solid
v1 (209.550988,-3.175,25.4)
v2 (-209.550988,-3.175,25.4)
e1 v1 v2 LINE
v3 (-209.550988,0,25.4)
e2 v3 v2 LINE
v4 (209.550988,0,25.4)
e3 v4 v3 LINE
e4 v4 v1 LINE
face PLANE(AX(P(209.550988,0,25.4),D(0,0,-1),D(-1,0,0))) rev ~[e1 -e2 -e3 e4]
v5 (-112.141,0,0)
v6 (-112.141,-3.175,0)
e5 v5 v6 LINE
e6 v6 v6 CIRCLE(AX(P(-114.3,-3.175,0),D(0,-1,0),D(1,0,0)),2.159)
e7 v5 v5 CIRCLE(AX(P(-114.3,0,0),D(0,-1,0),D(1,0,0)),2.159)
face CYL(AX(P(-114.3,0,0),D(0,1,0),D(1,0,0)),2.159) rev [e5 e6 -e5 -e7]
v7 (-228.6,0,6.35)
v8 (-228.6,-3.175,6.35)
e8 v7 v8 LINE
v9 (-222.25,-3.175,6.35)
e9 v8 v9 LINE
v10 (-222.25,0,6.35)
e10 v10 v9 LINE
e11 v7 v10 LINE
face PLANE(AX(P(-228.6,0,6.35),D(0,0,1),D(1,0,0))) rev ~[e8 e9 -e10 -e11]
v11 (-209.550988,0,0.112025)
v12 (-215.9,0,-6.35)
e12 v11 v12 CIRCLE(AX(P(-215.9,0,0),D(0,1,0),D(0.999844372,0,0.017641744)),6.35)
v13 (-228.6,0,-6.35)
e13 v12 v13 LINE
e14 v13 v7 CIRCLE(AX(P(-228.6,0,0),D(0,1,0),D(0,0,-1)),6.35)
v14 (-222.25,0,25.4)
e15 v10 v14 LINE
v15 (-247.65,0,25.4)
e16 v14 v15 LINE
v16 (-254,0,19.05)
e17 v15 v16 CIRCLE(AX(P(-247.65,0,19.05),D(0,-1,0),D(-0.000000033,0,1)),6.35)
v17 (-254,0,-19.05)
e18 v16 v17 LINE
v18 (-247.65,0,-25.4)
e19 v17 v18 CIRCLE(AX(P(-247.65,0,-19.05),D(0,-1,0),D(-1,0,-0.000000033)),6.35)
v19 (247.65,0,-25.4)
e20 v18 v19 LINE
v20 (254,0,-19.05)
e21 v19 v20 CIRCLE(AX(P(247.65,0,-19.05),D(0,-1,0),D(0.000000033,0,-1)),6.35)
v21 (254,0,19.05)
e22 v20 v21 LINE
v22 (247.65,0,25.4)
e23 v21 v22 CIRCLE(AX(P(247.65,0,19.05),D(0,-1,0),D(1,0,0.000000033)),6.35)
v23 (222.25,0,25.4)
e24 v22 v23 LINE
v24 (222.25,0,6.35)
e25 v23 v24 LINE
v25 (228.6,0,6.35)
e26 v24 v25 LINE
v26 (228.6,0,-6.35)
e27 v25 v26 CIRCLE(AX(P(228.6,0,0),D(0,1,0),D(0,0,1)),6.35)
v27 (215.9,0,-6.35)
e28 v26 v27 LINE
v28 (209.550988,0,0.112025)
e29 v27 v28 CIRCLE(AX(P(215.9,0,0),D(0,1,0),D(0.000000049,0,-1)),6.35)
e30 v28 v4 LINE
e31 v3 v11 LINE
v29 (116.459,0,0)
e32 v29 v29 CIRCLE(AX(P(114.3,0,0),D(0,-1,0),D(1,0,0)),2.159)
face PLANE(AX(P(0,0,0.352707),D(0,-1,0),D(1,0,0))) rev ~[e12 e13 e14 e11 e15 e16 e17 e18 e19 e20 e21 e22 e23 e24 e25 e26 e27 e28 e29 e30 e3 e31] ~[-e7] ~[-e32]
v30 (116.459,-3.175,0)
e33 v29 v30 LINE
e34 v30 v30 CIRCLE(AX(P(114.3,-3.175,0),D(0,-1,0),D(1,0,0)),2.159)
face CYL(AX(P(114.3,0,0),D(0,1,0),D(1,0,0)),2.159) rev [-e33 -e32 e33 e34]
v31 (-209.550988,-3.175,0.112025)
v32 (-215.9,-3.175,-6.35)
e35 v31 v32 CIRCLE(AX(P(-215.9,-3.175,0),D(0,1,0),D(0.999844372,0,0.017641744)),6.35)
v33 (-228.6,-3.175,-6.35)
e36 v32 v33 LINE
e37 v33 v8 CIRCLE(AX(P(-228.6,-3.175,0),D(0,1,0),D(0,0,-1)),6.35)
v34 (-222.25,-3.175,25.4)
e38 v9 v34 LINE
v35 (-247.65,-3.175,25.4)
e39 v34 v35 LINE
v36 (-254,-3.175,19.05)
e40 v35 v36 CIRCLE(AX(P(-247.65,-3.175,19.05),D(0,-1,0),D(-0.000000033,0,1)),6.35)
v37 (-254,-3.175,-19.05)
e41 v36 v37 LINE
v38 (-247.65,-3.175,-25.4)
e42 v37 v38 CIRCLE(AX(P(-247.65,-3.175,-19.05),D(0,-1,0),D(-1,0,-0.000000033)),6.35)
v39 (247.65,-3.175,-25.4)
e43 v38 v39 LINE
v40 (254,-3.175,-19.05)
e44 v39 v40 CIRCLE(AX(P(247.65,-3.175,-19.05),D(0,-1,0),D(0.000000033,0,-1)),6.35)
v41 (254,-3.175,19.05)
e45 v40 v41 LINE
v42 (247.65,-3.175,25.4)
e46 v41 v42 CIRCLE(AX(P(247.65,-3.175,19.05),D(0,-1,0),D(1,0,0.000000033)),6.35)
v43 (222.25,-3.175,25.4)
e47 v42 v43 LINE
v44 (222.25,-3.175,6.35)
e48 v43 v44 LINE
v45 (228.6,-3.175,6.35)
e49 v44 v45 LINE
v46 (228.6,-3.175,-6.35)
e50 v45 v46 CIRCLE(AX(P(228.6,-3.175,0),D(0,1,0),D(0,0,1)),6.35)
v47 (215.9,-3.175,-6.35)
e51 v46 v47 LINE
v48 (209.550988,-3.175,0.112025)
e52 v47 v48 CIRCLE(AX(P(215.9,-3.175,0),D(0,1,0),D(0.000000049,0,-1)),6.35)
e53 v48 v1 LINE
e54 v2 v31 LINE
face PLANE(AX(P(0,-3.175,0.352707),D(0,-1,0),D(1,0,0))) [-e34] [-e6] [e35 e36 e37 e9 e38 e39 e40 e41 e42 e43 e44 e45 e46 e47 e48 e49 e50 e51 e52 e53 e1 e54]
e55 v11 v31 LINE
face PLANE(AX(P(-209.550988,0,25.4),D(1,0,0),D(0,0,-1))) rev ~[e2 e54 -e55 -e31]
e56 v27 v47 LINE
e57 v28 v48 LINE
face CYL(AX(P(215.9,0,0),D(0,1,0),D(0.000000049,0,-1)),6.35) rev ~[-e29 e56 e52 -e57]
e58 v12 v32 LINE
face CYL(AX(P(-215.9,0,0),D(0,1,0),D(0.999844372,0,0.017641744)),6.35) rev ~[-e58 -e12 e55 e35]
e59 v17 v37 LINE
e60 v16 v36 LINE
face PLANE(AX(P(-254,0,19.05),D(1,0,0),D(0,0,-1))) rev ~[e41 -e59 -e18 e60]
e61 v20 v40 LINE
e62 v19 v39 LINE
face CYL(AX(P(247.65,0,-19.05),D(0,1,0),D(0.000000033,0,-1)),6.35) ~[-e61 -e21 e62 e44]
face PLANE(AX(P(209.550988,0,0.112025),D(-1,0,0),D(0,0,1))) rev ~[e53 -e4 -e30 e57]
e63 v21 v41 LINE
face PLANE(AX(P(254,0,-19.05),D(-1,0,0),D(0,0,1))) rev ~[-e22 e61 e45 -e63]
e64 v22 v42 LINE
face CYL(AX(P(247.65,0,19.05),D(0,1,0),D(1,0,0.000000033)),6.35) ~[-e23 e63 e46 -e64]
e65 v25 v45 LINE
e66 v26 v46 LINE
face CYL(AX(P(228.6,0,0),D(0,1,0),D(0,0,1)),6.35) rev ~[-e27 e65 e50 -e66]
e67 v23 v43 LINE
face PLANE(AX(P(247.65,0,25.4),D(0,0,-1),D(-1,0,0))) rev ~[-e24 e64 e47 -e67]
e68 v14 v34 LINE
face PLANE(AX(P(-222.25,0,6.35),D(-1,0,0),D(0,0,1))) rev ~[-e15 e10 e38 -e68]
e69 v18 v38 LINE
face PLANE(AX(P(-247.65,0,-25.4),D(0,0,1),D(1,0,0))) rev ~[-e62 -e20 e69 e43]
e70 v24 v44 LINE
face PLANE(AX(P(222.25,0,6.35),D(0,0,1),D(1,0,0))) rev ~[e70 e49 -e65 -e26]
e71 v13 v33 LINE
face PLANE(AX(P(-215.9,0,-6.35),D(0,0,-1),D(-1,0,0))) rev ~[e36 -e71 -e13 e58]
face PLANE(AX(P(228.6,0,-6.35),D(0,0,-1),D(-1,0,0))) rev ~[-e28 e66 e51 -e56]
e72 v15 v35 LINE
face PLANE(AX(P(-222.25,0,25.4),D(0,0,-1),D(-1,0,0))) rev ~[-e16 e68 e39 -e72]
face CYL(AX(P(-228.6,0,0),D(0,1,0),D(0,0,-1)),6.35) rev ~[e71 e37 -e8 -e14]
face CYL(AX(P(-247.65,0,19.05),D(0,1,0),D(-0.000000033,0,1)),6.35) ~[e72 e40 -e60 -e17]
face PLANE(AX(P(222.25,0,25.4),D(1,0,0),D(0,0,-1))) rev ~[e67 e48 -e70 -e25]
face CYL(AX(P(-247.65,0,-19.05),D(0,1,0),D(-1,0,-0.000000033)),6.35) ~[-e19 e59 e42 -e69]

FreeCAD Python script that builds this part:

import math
import FreeCAD as App
import Part
import Sketcher
Q = App.Units.Quantity

doc = App.newDocument("Part")
body = doc.addObject("PartDesign::Body", "Body")

# Sketch on XZ plane
sketch1 = doc.addObject("Sketcher::SketchObject", "Sketch")
body.addObject(sketch1)
sketch1.AttachmentSupport = (doc.XZ_Plane, [""])
sketch1.MapMode = "FlatFace"
sketch1.addGeometry(Part.LineSegment(App.Vector(-247.65, -25.4, 0), App.Vector(247.65, -25.4, 0)), False)
sketch1.addGeometry(Part.ArcOfCircle(Part.Circle(App.Vector(247.65, -19.05, 0), App.Vector(0, 0, 1), 6.35), math.radians(-89.999998), math.radians(-0.000002)), False)
sketch1.addGeometry(Part.LineSegment(App.Vector(254, -19.05, 0), App.Vector(254, 19.05, 0)), False)
sketch1.addGeometry(Part.ArcOfCircle(Part.Circle(App.Vector(247.65, 19.05, 0), App.Vector(0, 0, 1), 6.35), math.radians(0.000002), math.radians(89.999998)), False)
sketch1.addGeometry(Part.LineSegment(App.Vector(247.65, 25.4, 0), App.Vector(222.25, 25.4, 0)), False)
sketch1.addGeometry(Part.LineSegment(App.Vector(222.25, 25.4, 0), App.Vector(222.25, 6.35, 0)), False)
sketch1.addGeometry(Part.LineSegment(App.Vector(222.25, 6.35, 0), App.Vector(228.6, 6.35, 0)), False)
sketch1.addGeometry(Part.ArcOfCircle(Part.Circle(App.Vector(228.6, 0, 0), App.Vector(0, 0, 1), 6.35), math.radians(-90), math.radians(90)), False)
sketch1.addGeometry(Part.LineSegment(App.Vector(228.6, -6.35, 0), App.Vector(215.9, -6.35, 0)), False)
sketch1.addGeometry(Part.ArcOfCircle(Part.Circle(App.Vector(215.9, 0, 0), App.Vector(0, 0, 1), 6.35), math.radians(178.98915), math.radians(270.000003)), False)
sketch1.addGeometry(Part.LineSegment(App.Vector(209.550988, 0.112025, 0), App.Vector(209.550988, 25.4, 0)), False)
sketch1.addGeometry(Part.LineSegment(App.Vector(209.550988, 25.4, 0), App.Vector(-209.550988, 25.4, 0)), False)
sketch1.addGeometry(Part.LineSegment(App.Vector(-209.550988, 25.4, 0), App.Vector(-209.550988, 0.112025, 0)), False)
sketch1.addGeometry(Part.ArcOfCircle(Part.Circle(App.Vector(-215.9, 0, 0), App.Vector(0, 0, 1), 6.35), math.radians(-90.000003), math.radians(1.01085)), False)
sketch1.addGeometry(Part.LineSegment(App.Vector(-215.9, -6.35, 0), App.Vector(-228.6, -6.35, 0)), False)
sketch1.addGeometry(Part.ArcOfCircle(Part.Circle(App.Vector(-228.6, 0, 0), App.Vector(0, 0, 1), 6.35), math.radians(90), math.radians(270)), False)
sketch1.addGeometry(Part.LineSegment(App.Vector(-228.6, 6.35, 0), App.Vector(-222.25, 6.35, 0)), False)
sketch1.addGeometry(Part.LineSegment(App.Vector(-222.25, 6.35, 0), App.Vector(-222.25, 25.4, 0)), False)
sketch1.addGeometry(Part.LineSegment(App.Vector(-222.25, 25.4, 0), App.Vector(-247.65, 25.4, 0)), False)
sketch1.addGeometry(Part.ArcOfCircle(Part.Circle(App.Vector(-247.65, 19.05, 0), App.Vector(0, 0, 1), 6.35), math.radians(90.000002), math.radians(179.999998)), False)
sketch1.addGeometry(Part.LineSegment(App.Vector(-254, 19.05, 0), App.Vector(-254, -19.05, 0)), False)
sketch1.addGeometry(Part.ArcOfCircle(Part.Circle(App.Vector(-247.65, -19.05, 0), App.Vector(0, 0, 1), 6.35), math.radians(-179.999998), math.radians(-90.000002)), False)
sketch1.addGeometry(Part.Circle(App.Vector(-114.3, 0, 0), App.Vector(0, 0, 1), 2.159), False)
sketch1.addGeometry(Part.Circle(App.Vector(114.3, 0, 0), App.Vector(0, 0, 1), 2.159), False)
sketch1.addConstraint(Sketcher.Constraint("Tangent", 0, 2, 1, 1))
sketch1.addConstraint(Sketcher.Constraint("Tangent", 1, 2, 2, 1))
sketch1.addConstraint(Sketcher.Constraint("Tangent", 2, 2, 3, 1))
sketch1.addConstraint(Sketcher.Constraint("Tangent", 3, 2, 4, 1))
sketch1.addConstraint(Sketcher.Constraint("Coincident", 4, 2, 5, 1))
sketch1.addConstraint(Sketcher.Constraint("Coincident", 5, 2, 6, 1))
sketch1.addConstraint(Sketcher.Constraint("Tangent", 6, 2, 7, 2))
sketch1.addConstraint(Sketcher.Constraint("Tangent", 7, 1, 8, 1))
sketch1.addConstraint(Sketcher.Constraint("Tangent", 8, 2, 9, 2))
sketch1.addConstraint(Sketcher.Constraint("Coincident", 9, 1, 10, 1))
sketch1.addConstraint(Sketcher.Constraint("Coincident", 10, 2, 11, 1))
sketch1.addConstraint(Sketcher.Constraint("Coincident", 11, 2, 12, 1))
sketch1.addConstraint(Sketcher.Constraint("Coincident", 12, 2, 13, 2))
sketch1.addConstraint(Sketcher.Constraint("Tangent", 13, 1, 14, 1))
sketch1.addConstraint(Sketcher.Constraint("Tangent", 14, 2, 15, 2))
sketch1.addConstraint(Sketcher.Constraint("Tangent", 15, 1, 16, 1))
sketch1.addConstraint(Sketcher.Constraint("Coincident", 16, 2, 17, 1))
sketch1.addConstraint(Sketcher.Constraint("Coincident", 17, 2, 18, 1))
sketch1.addConstraint(Sketcher.Constraint("Tangent", 18, 2, 19, 1))
sketch1.addConstraint(Sketcher.Constraint("Tangent", 19, 2, 20, 1))
sketch1.addConstraint(Sketcher.Constraint("Tangent", 20, 2, 21, 1))
sketch1.addConstraint(Sketcher.Constraint("Tangent", 21, 2, 0, 1))
sketch1.addConstraint(Sketcher.Constraint("Horizontal", 0))
sketch1.addConstraint(Sketcher.Constraint("Vertical", 2))
sketch1.addConstraint(Sketcher.Constraint("Horizontal", 4))
sketch1.addConstraint(Sketcher.Constraint("Vertical", 5))
sketch1.addConstraint(Sketcher.Constraint("Horizontal", 6))
sketch1.addConstraint(Sketcher.Constraint("Horizontal", 8))
sketch1.addConstraint(Sketcher.Constraint("Vertical", 10))
sketch1.addConstraint(Sketcher.Constraint("Horizontal", 11))
sketch1.addConstraint(Sketcher.Constraint("Vertical", 12))
sketch1.addConstraint(Sketcher.Constraint("Horizontal", 14))
sketch1.addConstraint(Sketcher.Constraint("Horizontal", 16))
sketch1.addConstraint(Sketcher.Constraint("Vertical", 17))
sketch1.addConstraint(Sketcher.Constraint("Horizontal", 18))
sketch1.addConstraint(Sketcher.Constraint("Vertical", 20))
sketch1.addConstraint(Sketcher.Constraint("Equal", 1, 3))
sketch1.addConstraint(Sketcher.Constraint("Equal", 3, 7))
sketch1.addConstraint(Sketcher.Constraint("Equal", 7, 9))
sketch1.addConstraint(Sketcher.Constraint("Equal", 9, 13))
sketch1.addConstraint(Sketcher.Constraint("Equal", 13, 15))
sketch1.addConstraint(Sketcher.Constraint("Equal", 15, 19))
sketch1.addConstraint(Sketcher.Constraint("Equal", 19, 21))
sketch1.addConstraint(Sketcher.Constraint("Equal", 22, 23))
sketch1.addConstraint(Sketcher.Constraint("Symmetric", 9, 3, 13, 3, -1, 1))
sketch1.addConstraint(Sketcher.Constraint("Symmetric", 1, 3, 19, 3, -1, 1))
sketch1.addConstraint(Sketcher.Constraint("Symmetric", 22, 3, 23, 3, -1, 1))
sketch1.addConstraint(Sketcher.Constraint("Symmetric", 7, 3, 15, 3, -2))
sketch1.addConstraint(Sketcher.Constraint("Symmetric", 4, 2, 17, 2, -2))
sketch1.addConstraint(Sketcher.Constraint("PointOnObject", 22, 3, -1))
sketch1.addConstraint(Sketcher.Constraint("Horizontal", 4, 2, 10, 2))
sketch1.addConstraint(Sketcher.Constraint("Horizontal", 9, 1, 12, 2))
sketch1.addConstraint(Sketcher.Constraint("Diameter", 22, Q("0.17 in")))
sketch1.addConstraint(Sketcher.Constraint("DistanceX", 4, 2, 4, 1, Q("1 in")))
sketch1.addConstraint(Sketcher.Constraint("Radius", 1, Q("0.25 in")))
sketch1.addConstraint(Sketcher.Constraint("DistanceX", 0, 1, 0, 2, Q("19.5 in")))
sketch1.addConstraint(Sketcher.Constraint("DistanceX", 8, 2, 8, 1, Q("0.5 in")))
sketch1.addConstraint(Sketcher.Constraint("DistanceY", 2, 1, 2, 2, Q("1.5 in")))
sketch1.addConstraint(Sketcher.Constraint("DistanceX", -1, 1, 7, 3, Q("9 in")))
sketch1.addConstraint(Sketcher.Constraint("DistanceX", 13, 3, 22, 3, Q("4 in")))
sketch1.addConstraint(Sketcher.Constraint("DistanceX", 11, 2, 11, 1, Q("419.101976 mm")))
pad1 = doc.addObject("PartDesign::Pad", "Pad")
body.addObject(pad1)
pad1.Profile = sketch1
pad1.Length = Q("0.125 in")

doc.recompute()
